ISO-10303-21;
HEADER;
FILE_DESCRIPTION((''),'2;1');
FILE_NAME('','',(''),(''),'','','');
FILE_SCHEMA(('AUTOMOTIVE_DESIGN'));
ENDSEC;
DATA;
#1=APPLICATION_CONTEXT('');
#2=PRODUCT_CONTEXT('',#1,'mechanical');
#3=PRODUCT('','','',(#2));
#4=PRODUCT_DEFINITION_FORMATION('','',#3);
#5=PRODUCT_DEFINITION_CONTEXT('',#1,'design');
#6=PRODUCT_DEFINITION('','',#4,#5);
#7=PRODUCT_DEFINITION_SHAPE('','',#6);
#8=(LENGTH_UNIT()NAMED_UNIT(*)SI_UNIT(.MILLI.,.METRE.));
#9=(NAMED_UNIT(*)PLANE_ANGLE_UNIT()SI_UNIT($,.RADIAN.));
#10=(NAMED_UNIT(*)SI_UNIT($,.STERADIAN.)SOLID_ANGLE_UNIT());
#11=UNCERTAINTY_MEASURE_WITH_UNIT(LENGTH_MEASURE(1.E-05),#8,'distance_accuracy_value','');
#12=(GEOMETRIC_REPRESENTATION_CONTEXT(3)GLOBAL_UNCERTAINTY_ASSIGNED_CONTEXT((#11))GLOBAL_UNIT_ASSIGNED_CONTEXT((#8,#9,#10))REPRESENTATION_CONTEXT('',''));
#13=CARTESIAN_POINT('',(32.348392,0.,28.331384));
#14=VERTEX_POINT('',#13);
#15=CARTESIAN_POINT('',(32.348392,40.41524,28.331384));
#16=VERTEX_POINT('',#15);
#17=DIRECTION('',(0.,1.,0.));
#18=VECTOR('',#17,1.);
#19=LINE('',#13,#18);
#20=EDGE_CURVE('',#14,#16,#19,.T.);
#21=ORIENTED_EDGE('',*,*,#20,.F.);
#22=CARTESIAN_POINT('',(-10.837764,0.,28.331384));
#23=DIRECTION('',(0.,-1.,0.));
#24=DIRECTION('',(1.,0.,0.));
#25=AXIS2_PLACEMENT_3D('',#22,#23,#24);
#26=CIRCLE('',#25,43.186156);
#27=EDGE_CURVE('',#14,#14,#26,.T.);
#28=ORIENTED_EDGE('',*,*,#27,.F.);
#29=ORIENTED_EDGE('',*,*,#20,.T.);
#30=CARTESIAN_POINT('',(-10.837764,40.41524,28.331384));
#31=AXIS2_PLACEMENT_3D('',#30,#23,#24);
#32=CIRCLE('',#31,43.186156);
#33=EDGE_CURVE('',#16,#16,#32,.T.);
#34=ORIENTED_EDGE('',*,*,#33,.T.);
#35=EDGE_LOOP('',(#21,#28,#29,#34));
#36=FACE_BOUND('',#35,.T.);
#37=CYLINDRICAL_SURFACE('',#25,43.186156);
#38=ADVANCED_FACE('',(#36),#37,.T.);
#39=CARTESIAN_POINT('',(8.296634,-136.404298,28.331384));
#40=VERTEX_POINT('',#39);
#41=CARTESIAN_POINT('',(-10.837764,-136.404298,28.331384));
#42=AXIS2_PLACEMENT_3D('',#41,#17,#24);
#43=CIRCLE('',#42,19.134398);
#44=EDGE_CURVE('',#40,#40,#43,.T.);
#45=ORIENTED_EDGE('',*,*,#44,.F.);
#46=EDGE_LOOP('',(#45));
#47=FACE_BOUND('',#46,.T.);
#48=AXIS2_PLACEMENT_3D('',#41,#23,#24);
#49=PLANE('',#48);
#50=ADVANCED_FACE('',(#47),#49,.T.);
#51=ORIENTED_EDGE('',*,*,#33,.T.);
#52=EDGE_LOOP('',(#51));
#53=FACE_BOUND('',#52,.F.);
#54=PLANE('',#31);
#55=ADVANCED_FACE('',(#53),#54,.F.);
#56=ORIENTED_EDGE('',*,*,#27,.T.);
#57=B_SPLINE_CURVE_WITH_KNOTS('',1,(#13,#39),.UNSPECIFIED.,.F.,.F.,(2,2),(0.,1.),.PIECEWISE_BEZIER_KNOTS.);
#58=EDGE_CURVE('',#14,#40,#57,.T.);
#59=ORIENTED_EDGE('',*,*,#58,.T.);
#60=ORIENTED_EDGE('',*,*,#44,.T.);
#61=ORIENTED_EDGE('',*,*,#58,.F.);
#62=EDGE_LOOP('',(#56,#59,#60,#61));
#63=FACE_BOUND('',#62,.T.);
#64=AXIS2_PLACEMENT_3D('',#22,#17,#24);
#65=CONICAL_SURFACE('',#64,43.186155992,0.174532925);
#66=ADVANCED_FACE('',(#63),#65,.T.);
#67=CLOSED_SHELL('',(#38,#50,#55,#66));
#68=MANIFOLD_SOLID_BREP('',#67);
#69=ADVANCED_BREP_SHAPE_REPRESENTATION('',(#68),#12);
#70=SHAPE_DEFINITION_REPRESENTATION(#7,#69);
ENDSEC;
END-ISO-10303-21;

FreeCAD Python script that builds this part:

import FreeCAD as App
import Part
import Sketcher
from FreeCAD import Vector

doc = App.newDocument("Part")
body = doc.addObject("PartDesign::Body", "Body")

sketch1 = doc.addObject("Sketcher::SketchObject", "Sketch")
body.addObject(sketch1)
sketch1.AttachmentSupport = (doc.XZ_Plane, [""])
sketch1.MapMode = "FlatFace"
sketch1.addGeometry(Part.Circle(Vector(-10.837764, 28.331384, 0), Vector(0, 0, 1), 43.186156), False)
sketch1.addConstraint(Sketcher.Constraint("Diameter", 0, 86.372312))
sketch1.addConstraint(Sketcher.Constraint("DistanceX", 0, 3, -1, 1, 10.837764))
sketch1.addConstraint(Sketcher.Constraint("DistanceY", -1, 1, 0, 3, 28.331384))
pad1 = doc.addObject("PartDesign::Pad", "Pad")
body.addObject(pad1)
pad1.Profile = sketch1
pad1.Length = 136.404298
pad1.TaperAngle = -10
pad2 = doc.addObject("PartDesign::Pad", "Pad001")
body.addObject(pad2)
pad2.Profile = sketch1
pad2.Length = 40.41524
pad2.Reversed = True

doc.recompute()
